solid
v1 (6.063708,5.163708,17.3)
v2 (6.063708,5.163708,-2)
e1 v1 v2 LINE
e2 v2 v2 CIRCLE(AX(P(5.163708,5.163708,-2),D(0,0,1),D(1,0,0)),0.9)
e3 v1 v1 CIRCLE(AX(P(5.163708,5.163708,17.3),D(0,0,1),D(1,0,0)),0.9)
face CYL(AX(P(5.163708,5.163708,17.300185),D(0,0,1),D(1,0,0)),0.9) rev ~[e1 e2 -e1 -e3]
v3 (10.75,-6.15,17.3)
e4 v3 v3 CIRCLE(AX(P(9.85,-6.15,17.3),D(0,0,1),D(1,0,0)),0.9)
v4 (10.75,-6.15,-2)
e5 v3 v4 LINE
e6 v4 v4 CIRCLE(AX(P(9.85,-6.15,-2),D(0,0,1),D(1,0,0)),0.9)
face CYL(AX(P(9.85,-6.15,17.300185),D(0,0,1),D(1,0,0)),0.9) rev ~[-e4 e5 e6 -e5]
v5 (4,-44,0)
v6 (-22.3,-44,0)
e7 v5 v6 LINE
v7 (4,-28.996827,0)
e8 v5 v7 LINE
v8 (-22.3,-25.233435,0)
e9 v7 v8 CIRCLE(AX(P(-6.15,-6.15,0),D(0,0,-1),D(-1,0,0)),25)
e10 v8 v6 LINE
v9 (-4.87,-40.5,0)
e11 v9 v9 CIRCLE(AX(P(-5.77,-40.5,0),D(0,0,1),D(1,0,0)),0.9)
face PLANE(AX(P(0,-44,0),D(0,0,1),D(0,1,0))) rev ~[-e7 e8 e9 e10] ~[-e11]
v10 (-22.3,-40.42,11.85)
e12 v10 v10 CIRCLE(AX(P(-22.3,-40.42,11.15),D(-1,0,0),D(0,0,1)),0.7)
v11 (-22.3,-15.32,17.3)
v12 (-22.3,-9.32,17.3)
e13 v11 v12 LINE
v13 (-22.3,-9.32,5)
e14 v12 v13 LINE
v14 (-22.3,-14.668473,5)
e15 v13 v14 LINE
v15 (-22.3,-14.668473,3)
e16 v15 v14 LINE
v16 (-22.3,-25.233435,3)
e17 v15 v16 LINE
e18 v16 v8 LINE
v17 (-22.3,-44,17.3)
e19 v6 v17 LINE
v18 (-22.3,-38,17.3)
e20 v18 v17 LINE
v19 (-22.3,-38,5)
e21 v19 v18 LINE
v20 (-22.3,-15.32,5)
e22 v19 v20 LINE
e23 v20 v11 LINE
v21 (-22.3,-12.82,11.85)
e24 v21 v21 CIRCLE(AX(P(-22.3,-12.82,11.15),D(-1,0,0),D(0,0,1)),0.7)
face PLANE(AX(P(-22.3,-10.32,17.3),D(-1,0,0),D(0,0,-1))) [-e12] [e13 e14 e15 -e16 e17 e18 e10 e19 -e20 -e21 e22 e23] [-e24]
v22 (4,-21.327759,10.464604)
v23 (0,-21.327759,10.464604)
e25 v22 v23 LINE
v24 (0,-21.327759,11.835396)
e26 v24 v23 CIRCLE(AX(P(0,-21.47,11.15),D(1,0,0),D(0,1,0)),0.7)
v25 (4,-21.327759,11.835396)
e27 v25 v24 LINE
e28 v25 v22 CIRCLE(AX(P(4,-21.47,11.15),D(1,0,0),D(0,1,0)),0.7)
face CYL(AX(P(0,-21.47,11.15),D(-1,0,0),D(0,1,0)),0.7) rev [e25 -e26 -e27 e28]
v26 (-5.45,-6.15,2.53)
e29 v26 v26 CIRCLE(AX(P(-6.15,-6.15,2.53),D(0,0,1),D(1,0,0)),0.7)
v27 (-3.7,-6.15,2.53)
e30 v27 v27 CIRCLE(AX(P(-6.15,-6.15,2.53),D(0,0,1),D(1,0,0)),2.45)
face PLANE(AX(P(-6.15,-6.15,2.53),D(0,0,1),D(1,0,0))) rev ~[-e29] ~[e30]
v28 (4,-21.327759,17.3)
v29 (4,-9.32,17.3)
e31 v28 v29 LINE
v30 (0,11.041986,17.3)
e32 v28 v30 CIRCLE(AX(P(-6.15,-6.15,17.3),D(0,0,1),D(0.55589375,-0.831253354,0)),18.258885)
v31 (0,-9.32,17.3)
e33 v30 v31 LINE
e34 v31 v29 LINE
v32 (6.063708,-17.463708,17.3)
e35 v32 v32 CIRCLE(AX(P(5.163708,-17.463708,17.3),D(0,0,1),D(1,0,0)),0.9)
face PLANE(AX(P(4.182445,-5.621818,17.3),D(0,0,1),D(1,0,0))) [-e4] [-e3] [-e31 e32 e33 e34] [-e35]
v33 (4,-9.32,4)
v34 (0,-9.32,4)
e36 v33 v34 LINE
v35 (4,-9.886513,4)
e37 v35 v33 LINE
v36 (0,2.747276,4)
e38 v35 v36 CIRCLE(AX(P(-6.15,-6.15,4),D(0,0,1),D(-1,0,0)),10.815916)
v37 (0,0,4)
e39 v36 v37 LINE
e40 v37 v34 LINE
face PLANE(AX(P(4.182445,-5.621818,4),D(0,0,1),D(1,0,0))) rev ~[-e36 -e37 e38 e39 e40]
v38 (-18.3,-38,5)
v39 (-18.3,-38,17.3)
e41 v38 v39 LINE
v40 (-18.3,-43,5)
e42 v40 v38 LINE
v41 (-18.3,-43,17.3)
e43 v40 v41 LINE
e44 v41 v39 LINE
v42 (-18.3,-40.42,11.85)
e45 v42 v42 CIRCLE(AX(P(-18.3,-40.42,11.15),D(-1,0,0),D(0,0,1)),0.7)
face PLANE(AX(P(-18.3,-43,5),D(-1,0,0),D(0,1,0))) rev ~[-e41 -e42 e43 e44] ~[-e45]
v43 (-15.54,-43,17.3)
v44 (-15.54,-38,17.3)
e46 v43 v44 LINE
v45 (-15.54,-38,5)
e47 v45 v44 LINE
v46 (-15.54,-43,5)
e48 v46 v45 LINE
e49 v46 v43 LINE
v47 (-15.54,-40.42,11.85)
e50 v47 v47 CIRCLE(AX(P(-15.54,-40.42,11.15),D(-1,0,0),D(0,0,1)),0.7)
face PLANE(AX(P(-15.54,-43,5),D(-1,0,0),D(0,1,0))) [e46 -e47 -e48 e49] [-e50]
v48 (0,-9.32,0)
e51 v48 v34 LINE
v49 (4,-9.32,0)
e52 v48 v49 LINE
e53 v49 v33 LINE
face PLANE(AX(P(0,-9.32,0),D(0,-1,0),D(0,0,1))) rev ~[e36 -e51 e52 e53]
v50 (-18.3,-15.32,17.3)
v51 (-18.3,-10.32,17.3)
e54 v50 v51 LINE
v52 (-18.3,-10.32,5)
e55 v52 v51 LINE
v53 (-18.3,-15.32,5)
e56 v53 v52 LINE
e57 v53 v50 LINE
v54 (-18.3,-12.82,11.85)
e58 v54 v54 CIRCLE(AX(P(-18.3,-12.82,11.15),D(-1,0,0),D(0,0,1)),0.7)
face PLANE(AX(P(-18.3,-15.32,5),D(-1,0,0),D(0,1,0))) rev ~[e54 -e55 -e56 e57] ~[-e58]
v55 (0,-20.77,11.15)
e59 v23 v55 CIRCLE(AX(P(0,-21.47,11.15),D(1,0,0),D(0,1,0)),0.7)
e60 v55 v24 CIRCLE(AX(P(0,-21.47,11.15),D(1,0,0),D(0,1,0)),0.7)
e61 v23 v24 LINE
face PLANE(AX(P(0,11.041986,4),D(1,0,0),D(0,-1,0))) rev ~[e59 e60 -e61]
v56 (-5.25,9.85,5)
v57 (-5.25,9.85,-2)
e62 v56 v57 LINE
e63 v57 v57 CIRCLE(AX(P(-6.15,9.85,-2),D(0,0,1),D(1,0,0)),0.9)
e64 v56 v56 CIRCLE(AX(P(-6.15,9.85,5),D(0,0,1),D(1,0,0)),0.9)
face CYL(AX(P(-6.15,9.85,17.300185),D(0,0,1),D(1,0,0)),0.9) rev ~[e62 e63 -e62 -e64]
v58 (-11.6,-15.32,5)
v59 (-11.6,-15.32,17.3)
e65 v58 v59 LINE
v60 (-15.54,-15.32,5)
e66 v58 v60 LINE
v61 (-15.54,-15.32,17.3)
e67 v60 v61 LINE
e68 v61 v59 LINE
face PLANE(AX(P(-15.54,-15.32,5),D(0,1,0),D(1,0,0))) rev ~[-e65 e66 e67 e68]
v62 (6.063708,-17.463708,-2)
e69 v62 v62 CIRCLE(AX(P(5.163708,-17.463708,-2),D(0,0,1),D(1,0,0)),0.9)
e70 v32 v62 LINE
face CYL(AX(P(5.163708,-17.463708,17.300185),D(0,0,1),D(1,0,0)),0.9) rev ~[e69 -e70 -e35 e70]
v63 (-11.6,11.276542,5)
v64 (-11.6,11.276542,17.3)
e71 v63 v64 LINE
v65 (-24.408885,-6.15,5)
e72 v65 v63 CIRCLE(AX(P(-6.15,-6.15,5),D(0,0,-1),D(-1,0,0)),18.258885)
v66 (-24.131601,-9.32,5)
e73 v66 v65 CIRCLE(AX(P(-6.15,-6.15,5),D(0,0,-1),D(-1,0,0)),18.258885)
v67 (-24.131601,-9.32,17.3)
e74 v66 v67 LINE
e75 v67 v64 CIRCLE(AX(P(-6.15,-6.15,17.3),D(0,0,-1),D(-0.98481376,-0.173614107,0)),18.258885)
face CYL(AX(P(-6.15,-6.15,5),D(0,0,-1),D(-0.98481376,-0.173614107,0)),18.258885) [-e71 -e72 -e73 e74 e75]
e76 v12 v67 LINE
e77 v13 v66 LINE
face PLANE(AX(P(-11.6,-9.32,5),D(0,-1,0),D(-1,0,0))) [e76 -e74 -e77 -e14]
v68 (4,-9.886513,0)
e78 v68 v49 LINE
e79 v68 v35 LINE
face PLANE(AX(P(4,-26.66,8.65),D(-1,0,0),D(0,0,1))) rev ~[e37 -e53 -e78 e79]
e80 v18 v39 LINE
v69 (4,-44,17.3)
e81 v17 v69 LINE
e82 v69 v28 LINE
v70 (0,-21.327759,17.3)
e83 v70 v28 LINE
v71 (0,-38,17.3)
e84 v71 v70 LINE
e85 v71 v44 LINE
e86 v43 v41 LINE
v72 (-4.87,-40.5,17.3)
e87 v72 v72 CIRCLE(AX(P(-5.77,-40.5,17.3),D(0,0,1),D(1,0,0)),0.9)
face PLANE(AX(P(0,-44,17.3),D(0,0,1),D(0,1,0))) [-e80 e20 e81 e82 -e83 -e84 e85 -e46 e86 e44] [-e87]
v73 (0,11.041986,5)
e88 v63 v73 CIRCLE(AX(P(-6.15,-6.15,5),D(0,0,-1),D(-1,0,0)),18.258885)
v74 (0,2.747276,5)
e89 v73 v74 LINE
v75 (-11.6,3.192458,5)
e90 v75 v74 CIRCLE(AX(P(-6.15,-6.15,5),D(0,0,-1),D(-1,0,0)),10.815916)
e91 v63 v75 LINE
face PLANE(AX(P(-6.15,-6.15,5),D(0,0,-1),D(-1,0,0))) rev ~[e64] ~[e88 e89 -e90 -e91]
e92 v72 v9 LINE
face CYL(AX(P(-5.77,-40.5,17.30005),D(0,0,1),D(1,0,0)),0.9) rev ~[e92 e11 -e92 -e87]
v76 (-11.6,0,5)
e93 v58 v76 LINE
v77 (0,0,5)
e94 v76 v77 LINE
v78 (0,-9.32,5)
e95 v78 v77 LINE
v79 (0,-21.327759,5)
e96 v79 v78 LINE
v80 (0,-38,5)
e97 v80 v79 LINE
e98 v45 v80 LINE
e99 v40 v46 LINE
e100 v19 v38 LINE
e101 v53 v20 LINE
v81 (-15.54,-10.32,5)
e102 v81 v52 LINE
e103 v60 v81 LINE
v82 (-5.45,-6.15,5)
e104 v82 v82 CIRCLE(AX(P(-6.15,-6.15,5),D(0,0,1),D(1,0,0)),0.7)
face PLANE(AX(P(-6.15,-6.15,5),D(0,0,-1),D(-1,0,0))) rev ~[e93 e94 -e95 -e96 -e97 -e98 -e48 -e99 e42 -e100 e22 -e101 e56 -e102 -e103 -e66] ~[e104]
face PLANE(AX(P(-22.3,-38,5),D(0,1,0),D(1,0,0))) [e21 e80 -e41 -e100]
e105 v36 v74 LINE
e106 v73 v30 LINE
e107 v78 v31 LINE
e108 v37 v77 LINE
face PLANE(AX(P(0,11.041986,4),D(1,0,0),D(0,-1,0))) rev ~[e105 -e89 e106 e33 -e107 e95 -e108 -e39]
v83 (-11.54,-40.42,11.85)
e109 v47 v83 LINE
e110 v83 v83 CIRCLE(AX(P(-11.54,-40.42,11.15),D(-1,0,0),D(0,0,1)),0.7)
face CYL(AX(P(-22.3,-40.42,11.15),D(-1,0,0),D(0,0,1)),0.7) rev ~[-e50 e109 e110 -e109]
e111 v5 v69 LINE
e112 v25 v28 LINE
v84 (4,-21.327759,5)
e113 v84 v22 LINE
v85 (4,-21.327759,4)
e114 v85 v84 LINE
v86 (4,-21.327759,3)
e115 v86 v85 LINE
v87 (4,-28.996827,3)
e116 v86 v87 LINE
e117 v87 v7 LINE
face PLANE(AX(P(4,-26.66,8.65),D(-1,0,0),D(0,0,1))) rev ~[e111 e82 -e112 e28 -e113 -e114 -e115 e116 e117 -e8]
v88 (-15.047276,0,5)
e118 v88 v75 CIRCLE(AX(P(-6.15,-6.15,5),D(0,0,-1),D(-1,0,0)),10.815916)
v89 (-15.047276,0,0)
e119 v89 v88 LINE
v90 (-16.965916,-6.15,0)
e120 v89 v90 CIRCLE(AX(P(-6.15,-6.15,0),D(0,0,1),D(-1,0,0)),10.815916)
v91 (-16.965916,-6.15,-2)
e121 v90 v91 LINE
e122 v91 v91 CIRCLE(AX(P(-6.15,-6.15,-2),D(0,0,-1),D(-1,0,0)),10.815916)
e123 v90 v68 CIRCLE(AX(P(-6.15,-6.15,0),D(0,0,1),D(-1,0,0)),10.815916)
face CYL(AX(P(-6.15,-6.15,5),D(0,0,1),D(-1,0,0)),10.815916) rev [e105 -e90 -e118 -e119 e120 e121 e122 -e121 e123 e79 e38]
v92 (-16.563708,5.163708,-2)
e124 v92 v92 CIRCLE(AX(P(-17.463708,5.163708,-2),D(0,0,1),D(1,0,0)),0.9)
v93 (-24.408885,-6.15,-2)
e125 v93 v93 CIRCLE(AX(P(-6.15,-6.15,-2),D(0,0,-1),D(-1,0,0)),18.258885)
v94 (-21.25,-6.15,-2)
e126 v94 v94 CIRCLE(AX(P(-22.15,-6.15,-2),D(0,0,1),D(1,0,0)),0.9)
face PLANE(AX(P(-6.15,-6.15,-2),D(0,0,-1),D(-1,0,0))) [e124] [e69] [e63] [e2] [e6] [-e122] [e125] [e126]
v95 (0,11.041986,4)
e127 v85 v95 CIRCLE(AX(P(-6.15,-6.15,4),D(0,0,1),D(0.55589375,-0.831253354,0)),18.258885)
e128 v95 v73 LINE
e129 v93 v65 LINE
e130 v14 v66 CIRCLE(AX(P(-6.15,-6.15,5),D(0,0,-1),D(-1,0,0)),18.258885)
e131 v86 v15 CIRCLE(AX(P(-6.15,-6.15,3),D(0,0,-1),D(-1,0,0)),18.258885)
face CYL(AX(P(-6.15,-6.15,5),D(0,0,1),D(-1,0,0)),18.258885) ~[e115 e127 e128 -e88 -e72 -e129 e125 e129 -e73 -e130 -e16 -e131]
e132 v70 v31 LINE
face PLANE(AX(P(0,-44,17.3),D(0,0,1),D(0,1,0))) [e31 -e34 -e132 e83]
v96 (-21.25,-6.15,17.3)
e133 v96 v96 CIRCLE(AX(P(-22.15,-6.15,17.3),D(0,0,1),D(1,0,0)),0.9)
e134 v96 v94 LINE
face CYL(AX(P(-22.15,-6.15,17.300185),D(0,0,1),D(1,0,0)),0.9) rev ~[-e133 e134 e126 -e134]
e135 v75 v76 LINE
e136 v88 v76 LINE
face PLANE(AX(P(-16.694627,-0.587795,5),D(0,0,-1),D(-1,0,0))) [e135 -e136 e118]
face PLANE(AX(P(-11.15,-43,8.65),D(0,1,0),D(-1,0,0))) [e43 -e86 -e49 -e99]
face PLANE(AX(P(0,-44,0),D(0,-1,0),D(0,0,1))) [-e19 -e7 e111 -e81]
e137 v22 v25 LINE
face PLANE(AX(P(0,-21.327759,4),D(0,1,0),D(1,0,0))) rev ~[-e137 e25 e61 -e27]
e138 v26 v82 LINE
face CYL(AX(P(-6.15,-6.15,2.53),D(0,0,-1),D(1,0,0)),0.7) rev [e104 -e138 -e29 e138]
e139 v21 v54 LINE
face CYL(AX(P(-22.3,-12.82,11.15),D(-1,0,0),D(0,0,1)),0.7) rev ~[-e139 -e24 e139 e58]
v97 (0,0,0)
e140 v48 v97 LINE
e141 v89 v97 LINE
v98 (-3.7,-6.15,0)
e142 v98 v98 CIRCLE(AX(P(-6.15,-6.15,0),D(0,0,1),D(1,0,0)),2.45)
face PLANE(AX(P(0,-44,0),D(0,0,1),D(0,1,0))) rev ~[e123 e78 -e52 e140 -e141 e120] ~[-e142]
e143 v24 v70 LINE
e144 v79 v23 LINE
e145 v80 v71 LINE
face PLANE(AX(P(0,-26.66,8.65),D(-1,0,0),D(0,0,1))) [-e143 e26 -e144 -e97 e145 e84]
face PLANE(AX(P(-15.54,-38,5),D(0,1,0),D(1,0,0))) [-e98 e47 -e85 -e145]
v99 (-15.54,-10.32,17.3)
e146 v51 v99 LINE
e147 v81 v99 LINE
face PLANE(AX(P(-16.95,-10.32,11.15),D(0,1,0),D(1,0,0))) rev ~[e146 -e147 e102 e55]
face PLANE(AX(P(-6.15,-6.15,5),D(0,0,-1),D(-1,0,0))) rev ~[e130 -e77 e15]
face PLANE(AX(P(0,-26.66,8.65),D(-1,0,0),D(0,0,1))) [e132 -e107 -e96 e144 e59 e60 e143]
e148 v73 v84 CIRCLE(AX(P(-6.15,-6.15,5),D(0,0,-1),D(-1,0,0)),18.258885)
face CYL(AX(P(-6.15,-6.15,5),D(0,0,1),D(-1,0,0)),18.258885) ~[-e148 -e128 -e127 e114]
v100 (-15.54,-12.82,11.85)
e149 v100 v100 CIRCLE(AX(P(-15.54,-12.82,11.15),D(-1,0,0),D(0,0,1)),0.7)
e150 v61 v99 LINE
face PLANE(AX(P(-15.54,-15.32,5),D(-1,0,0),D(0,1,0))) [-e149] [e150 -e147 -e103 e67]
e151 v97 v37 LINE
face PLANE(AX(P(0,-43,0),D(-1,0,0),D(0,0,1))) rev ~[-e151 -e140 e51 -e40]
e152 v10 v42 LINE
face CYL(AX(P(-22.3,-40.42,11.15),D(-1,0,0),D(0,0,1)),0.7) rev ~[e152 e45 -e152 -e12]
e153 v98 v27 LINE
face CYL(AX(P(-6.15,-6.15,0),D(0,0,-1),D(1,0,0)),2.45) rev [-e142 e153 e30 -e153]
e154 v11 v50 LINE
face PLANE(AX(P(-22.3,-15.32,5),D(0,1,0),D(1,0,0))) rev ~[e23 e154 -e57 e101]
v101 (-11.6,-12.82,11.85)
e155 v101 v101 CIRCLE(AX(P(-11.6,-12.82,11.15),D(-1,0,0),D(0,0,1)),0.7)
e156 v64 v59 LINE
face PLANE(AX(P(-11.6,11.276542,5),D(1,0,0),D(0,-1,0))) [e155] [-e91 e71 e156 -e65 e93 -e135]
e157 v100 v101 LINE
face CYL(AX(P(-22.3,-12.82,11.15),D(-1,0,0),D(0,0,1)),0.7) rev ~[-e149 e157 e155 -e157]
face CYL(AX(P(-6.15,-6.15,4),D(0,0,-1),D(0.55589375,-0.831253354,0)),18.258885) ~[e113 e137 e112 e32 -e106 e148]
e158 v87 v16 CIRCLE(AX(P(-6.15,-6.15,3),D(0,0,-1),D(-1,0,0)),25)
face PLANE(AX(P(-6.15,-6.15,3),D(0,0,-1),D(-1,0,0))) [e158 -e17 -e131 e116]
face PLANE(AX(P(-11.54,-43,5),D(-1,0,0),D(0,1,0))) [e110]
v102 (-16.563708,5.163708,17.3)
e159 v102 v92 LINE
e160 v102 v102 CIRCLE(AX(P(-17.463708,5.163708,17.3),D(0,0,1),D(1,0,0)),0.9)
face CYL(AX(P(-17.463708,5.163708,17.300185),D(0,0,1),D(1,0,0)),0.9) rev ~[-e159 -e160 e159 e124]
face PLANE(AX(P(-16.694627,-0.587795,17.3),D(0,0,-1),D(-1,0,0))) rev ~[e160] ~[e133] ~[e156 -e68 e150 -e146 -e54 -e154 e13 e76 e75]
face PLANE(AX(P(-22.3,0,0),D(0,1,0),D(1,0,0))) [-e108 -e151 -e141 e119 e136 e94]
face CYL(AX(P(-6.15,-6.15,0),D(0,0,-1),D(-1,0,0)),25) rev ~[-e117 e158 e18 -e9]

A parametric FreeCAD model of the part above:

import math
import FreeCAD as App
import Part
import Sketcher
from FreeCAD import Vector
Q = App.Units.Quantity


def add_polygon(sketch, points):
    """Adds a closed chain of lines whose ends are joined by coincident constraints."""
    first, n = sketch.GeometryCount, len(points)
    for a, b in zip(points, points[1:] + points[:1]):
        sketch.addGeometry(Part.LineSegment(App.Vector(*a, 0), App.Vector(*b, 0)), False)
    for i in range(n):
        sketch.addConstraint(Sketcher.Constraint("Coincident", first + i, 2, first + (i + 1) % n, 1))

doc = App.newDocument("Part")
params = doc.addObject("Spreadsheet::Sheet", "Params")
for row, (alias, value) in enumerate([
    ("sketch1_diameter", "4.9 mm"),
    ("sketch1_height", "43 mm"),
    ("sketch1_width", "22.3 mm"),
    ("pad1_length", "5 mm"),
    ("sketch2_diameter", "4.9 mm"),
    ("sketch2_diameter2", "1.4 mm"),
    ("pad2_length", "2.47 mm"),
    ("sketch3_width", "4 mm"),
    ("sketch3_height", "5 mm"),
    ("sketch3_width2", "3.94 mm"),
    ("pad3_length", "12.3 mm"),
    ("sketch4_diameter", "1.4 mm"),
    ("sketch5_width", "22.3 mm"),
    ("sketch5_height", "17.3 mm"),
    ("pad4_length", "1 mm"),
    ("sketch6_width", "10.7 mm"),
    ("sketch6_height", "12.3 mm"),
    ("pad5_length", "1 mm"),
    ("sketch7_diameter", "1.4 mm"),
    ("sketch7_height", "17.3 mm"),
    ("sketch7_width", "34.68 mm"),
    ("pad6_length", "4 mm"),
    ("pad7_length", "2 mm"),
    ("pad7_length2", "5 mm"),
    ("sketch9_diameter", "50 mm"),
    ("pocket2_length", "3 mm"),
    ("sketch10_height", "5 mm"),
    ("sketch10_width", "11.54 mm"),
    ("pad8_length", "12.3 mm"),
    ("pad9_length", "12.3 mm"),
    ("sketch12_width", "4 mm"),
    ("pad10_length", "12.3 mm"),
    ("pad10_length2", "1 mm"),
    ("sketch13_diameter", "1.8 mm"),
    ("sketch14_diameter", "1.8 mm"),
], start=1):
    params.set(f"A{row}", alias)
    params.set(f"B{row}", "=" + value)
    params.setAlias(f"B{row}", alias)

body = doc.addObject("PartDesign::Body", "Body")

sketch1 = body.newObject("Sketcher::SketchObject", "Sketch")
sketch1.AttachmentSupport = (doc.getObject("XY_Plane"), [""])
sketch1.MapMode = "FlatFace"
add_polygon(sketch1, [(-22.3, 0), (-22.3, -43), (0, -43), (0, 0)])
sketch1.addGeometry(Part.Circle(Vector(-6.2, -6.2, 0), Vector(0, 0, 1), 2.5), False)
sketch1.addConstraint(Sketcher.Constraint("Vertical", 0))
sketch1.addConstraint(Sketcher.Constraint("Horizontal", 1))
sketch1.addConstraint(Sketcher.Constraint("Vertical", 2))
sketch1.addConstraint(Sketcher.Constraint("Horizontal", 3))
sketch1.addConstraint(Sketcher.Constraint("Coincident", 2, 2, -1, 1))
sketch1.addConstraint(Sketcher.Constraint("Diameter", 4, Q("4.9 mm")))
sketch1.addConstraint(Sketcher.Constraint("DistanceY", 0, 2, 0, 1, Q("43 mm")))
sketch1.addConstraint(Sketcher.Constraint("DistanceX", 1, 1, 1, 2, Q("22.3 mm")))
sketch1.addConstraint(Sketcher.Constraint("DistanceX", 4, 3, -1, 1, Q("6.15 mm")))
sketch1.addConstraint(Sketcher.Constraint("DistanceY", 4, 3, -1, 1, Q("6.15 mm")))
sketch1.setExpression("Constraints[9]", "Params.sketch1_diameter")
sketch1.setExpression("Constraints[10]", "Params.sketch1_height")
sketch1.setExpression("Constraints[11]", "Params.sketch1_width")
pad1 = body.newObject("PartDesign::Pad", "Pad")
pad1.Profile = sketch1
pad1.setExpression("Length", "Params.pad1_length")

sketch2 = body.newObject("Sketcher::SketchObject", "Sketch001")
sketch2.AttachmentSupport = (doc.getObject("XY_Plane"), [""])
sketch2.MapMode = "FlatFace"
sketch2.AttachmentOffset = App.Placement(Vector(0, 0, 2.53), App.Rotation())
sketch2.addGeometry(Part.Circle(Vector(-6.2, -6.2, 0), Vector(0, 0, 1), 2.5), False)
sketch2.addGeometry(Part.Circle(Vector(-6.2, -6.2, 0), Vector(0, 0, 1), 0.7), False)
sketch2.addConstraint(Sketcher.Constraint("Coincident", 1, 3, 0, 3))
sketch2.addConstraint(Sketcher.Constraint("Diameter", 0, Q("4.9 mm")))
sketch2.addConstraint(Sketcher.Constraint("Diameter", 1, Q("1.4 mm")))
sketch2.addConstraint(Sketcher.Constraint("DistanceX", 0, 3, -1, 1, Q("6.15 mm")))
sketch2.addConstraint(Sketcher.Constraint("DistanceY", 0, 3, -1, 1, Q("6.15 mm")))
sketch2.setExpression("Constraints[1]", "Params.sketch2_diameter")
sketch2.setExpression("Constraints[2]", "Params.sketch2_diameter2")
pad2 = body.newObject("PartDesign::Pad", "Pad001")
pad2.Profile = sketch2
pad2.setExpression("Length", "Params.pad2_length")

sketch3 = body.newObject("Sketcher::SketchObject", "Sketch002")
sketch3.AttachmentSupport = (doc.getObject("XY_Plane"), [""])
sketch3.MapMode = "FlatFace"
sketch3.AttachmentOffset = App.Placement(Vector(0, 0, 5), App.Rotation())
add_polygon(sketch3, [(-22.3, -38), (-22.3, -43), (-18.3, -43), (-18.3, -38)])
add_polygon(sketch3, [(-15.5, -38), (-15.5, -43), (-11.5, -43), (-11.5, -38)])
add_polygon(sketch3, [(-22.3, -10.3), (-22.3, -15.3), (-18.3, -15.3), (-18.3, -10.3)])
add_polygon(sketch3, [(-15.5, -10.3), (-15.5, -15.3), (-11.6, -15.3), (-11.6, -10.3)])
sketch3.addConstraint(Sketcher.Constraint("Vertical", 0))
sketch3.addConstraint(Sketcher.Constraint("Horizontal", 1))
sketch3.addConstraint(Sketcher.Constraint("Vertical", 2))
sketch3.addConstraint(Sketcher.Constraint("Horizontal", 3))
sketch3.addConstraint(Sketcher.Constraint("Vertical", 4))
sketch3.addConstraint(Sketcher.Constraint("Horizontal", 5))
sketch3.addConstraint(Sketcher.Constraint("Vertical", 6))
sketch3.addConstraint(Sketcher.Constraint("Horizontal", 7))
sketch3.addConstraint(Sketcher.Constraint("Vertical", 8))
sketch3.addConstraint(Sketcher.Constraint("Horizontal", 9))
sketch3.addConstraint(Sketcher.Constraint("Vertical", 10))
sketch3.addConstraint(Sketcher.Constraint("Horizontal", 11))
sketch3.addConstraint(Sketcher.Constraint("Vertical", 12))
sketch3.addConstraint(Sketcher.Constraint("Horizontal", 13))
sketch3.addConstraint(Sketcher.Constraint("Vertical", 14))
sketch3.addConstraint(Sketcher.Constraint("Horizontal", 15))
sketch3.addConstraint(Sketcher.Constraint("Horizontal", 1, 2, 4, 2))
sketch3.addConstraint(Sketcher.Constraint("Horizontal", 3, 2, 6, 2))
sketch3.addConstraint(Sketcher.Constraint("Horizontal", 9, 2, 12, 2))
sketch3.addConstraint(Sketcher.Constraint("Horizontal", 11, 2, 14, 2))
sketch3.addConstraint(Sketcher.Constraint("Vertical", 3, 2, 8, 2))
sketch3.addConstraint(Sketcher.Constraint("Vertical", 2, 2, 9, 2))
sketch3.addConstraint(Sketcher.Constraint("Vertical", 7, 2, 12, 2))
sketch3.addConstraint(Sketcher.Constraint("Equal", 3, 5))
sketch3.addConstraint(Sketcher.Constraint("Equal", 6, 8))
sketch3.addConstraint(Sketcher.Constraint("DistanceX", 1, 1, 1, 2, Q("4 mm")))
sketch3.addConstraint(Sketcher.Constraint("DistanceY", 0, 2, 0, 1, Q("5 mm")))
sketch3.addConstraint(Sketcher.Constraint("DistanceY", 0, 2, -1, 1, Q("43 mm")))
sketch3.addConstraint(Sketcher.Constraint("DistanceX", 13, 1, 13, 2, Q("3.94 mm")))
sketch3.addConstraint(Sketcher.Constraint("DistanceX", 0, 2, -1, 1, Q("22.3 mm")))
sketch3.addConstraint(Sketcher.Constraint("DistanceX", 13, 2, -1, 1, Q("11.6 mm")))
sketch3.addConstraint(Sketcher.Constraint("DistanceY", 8, 2, -1, 1, Q("15.32 mm")))
sketch3.setExpression("Constraints[41]", "Params.sketch3_width")
sketch3.setExpression("Constraints[42]", "Params.sketch3_height")
sketch3.setExpression("Constraints[44]", "Params.sketch3_width2")
pad3 = body.newObject("PartDesign::Pad", "Pad002")
pad3.Profile = sketch3
pad3.setExpression("Length", "Params.pad3_length")

sketch4 = body.newObject("Sketcher::SketchObject", "Sketch003")
sketch4.AttachmentSupport = (doc.getObject("YZ_Plane"), [""])
sketch4.MapMode = "FlatFace"
sketch4.AttachmentOffset = App.Placement(Vector(0, 0, -22.3), App.Rotation())
sketch4.addGeometry(Part.Circle(Vector(-12.8, 11.2, 0), Vector(0, 0, 1), 0.7), False)
sketch4.addGeometry(Part.Circle(Vector(-40.4, 11.2, 0), Vector(0, 0, 1), 0.7), False)
sketch4.addConstraint(Sketcher.Constraint("Equal", 0, 1))
sketch4.addConstraint(Sketcher.Constraint("Horizontal", 0, 3, 1, 3))
sketch4.addConstraint(Sketcher.Constraint("Diameter", 0, Q("1.4 mm")))
sketch4.addConstraint(Sketcher.Constraint("DistanceX", 1, 3, 0, 3, Q("27.6 mm")))
sketch4.addConstraint(Sketcher.Constraint("DistanceX", 0, 3, -1, 1, Q("12.82 mm")))
sketch4.addConstraint(Sketcher.Constraint("DistanceY", -1, 1, 0, 3, Q("11.15 mm")))
sketch4.setExpression("Constraints[2]", "Params.sketch4_diameter")
pocket1 = body.newObject("PartDesign::Pocket", "Pocket")
pocket1.Profile = sketch4
pocket1.Type = "ThroughAll"
pocket1.Reversed = True

sketch5 = body.newObject("Sketcher::SketchObject", "Sketch004")
sketch5.AttachmentSupport = (doc.getObject("XZ_Plane"), [""])
sketch5.MapMode = "FlatFace"
sketch5.AttachmentOffset = App.Placement(Vector(0, 0, 43), App.Rotation())
add_polygon(sketch5, [(0, 17), (-22, 17), (-22, 0), (0, 0)])
sketch5.addConstraint(Sketcher.Constraint("Horizontal", 0))
sketch5.addConstraint(Sketcher.Constraint("Vertical", 1))
sketch5.addConstraint(Sketcher.Constraint("Horizontal", 2))
sketch5.addConstraint(Sketcher.Constraint("Vertical", 3))
sketch5.addConstraint(Sketcher.Constraint("Coincident", 2, 2, -1, 1))
sketch5.addConstraint(Sketcher.Constraint("DistanceX", 0, 2, 0, 1, Q("22.3 mm")))
sketch5.addConstraint(Sketcher.Constraint("DistanceY", 1, 2, 1, 1, Q("17.3 mm")))
sketch5.setExpression("Constraints[9]", "Params.sketch5_width")
sketch5.setExpression("Constraints[10]", "Params.sketch5_height")
pad4 = body.newObject("PartDesign::Pad", "Pad003")
pad4.Profile = sketch5
pad4.setExpression("Length", "Params.pad4_length")

sketch6 = body.newObject("Sketcher::SketchObject", "Sketch005")
sketch6.AttachmentSupport = (doc.getObject("XZ_Plane"), [""])
sketch6.MapMode = "FlatFace"
sketch6.AttachmentOffset = App.Placement(Vector(0, 0, 10.32), App.Rotation())
add_polygon(sketch6, [(-22, 5), (-22, 17), (-12, 17), (-12, 5)])
sketch6.addConstraint(Sketcher.Constraint("Vertical", 0))
sketch6.addConstraint(Sketcher.Constraint("Horizontal", 1))
sketch6.addConstraint(Sketcher.Constraint("Vertical", 2))
sketch6.addConstraint(Sketcher.Constraint("Horizontal", 3))
sketch6.addConstraint(Sketcher.Constraint("DistanceX", 1, 1, 1, 2, Q("10.7 mm")))
sketch6.addConstraint(Sketcher.Constraint("DistanceY", 0, 1, 0, 2, Q("12.3 mm")))
sketch6.addConstraint(Sketcher.Constraint("DistanceY", -1, 1, 2, 2, Q("5 mm")))
sketch6.addConstraint(Sketcher.Constraint("DistanceX", 0, 2, -1, 1, Q("22.3 mm")))
sketch6.setExpression("Constraints[8]", "Params.sketch6_width")
sketch6.setExpression("Constraints[9]", "Params.sketch6_height")
pad5 = body.newObject("PartDesign::Pad", "Pad004")
pad5.Profile = sketch6
pad5.setExpression("Length", "Params.pad5_length")
pad5.Reversed = True

sketch7 = body.newObject("Sketcher::SketchObject", "Sketch006")
sketch7.AttachmentSupport = (doc.getObject("YZ_Plane"), [""])
sketch7.MapMode = "FlatFace"
add_polygon(sketch7, [(-9.3, 0), (-9.3, 17.3), (-44, 17.3), (-44, 0)])
sketch7.addGeometry(Part.Circle(Vector(-21.5, 11.2, 0), Vector(0, 0, 1), 0.7), False)
sketch7.addConstraint(Sketcher.Constraint("Vertical", 0))
sketch7.addConstraint(Sketcher.Constraint("Horizontal", 1))
sketch7.addConstraint(Sketcher.Constraint("Vertical", 2))
sketch7.addConstraint(Sketcher.Constraint("Horizontal", 3))
sketch7.addConstraint(Sketcher.Constraint("PointOnObject", 2, 2, -1))
sketch7.addConstraint(Sketcher.Constraint("Diameter", 4, Q("1.4 mm")))
sketch7.addConstraint(Sketcher.Constraint("DistanceY", 0, 1, 0, 2, Q("17.3 mm")))
sketch7.addConstraint(Sketcher.Constraint("DistanceX", 1, 2, -1, 1, Q("44 mm")))
sketch7.addConstraint(Sketcher.Constraint("DistanceX", 1, 2, 1, 1, Q("34.68 mm")))
sketch7.addConstraint(Sketcher.Constraint("DistanceX", 4, 3, -1, 1, Q("21.47 mm")))
sketch7.addConstraint(Sketcher.Constraint("DistanceY", -1, 1, 4, 3, Q("11.15 mm")))
sketch7.setExpression("Constraints[9]", "Params.sketch7_diameter")
sketch7.setExpression("Constraints[10]", "Params.sketch7_height")
sketch7.setExpression("Constraints[12]", "Params.sketch7_width")
pad6 = body.newObject("PartDesign::Pad", "Pad005")
pad6.Profile = sketch7
pad6.setExpression("Length", "Params.pad6_length")

sketch8 = body.newObject("Sketcher::SketchObject", "Sketch007")
sketch8.AttachmentSupport = (doc.getObject("XY_Plane"), [""])
sketch8.MapMode = "FlatFace"
sketch8.addGeometry(Part.Circle(Vector(-6, -6, 0), Vector(0, 0, 1), 18), False)
sketch8.addGeometry(Part.Circle(Vector(-6, -6, 0), Vector(0, 0, 1), 11), False)
sketch8.addConstraint(Sketcher.Constraint("Coincident", 1, 3, 0, 3))
sketch8.addConstraint(Sketcher.Constraint("Diameter", 0, Q("36.51777 mm")))
sketch8.addConstraint(Sketcher.Constraint("Diameter", 1, Q("21.631831 mm")))
sketch8.addConstraint(Sketcher.Constraint("DistanceX", 0, 3, -1, 1, Q("6.15 mm")))
sketch8.addConstraint(Sketcher.Constraint("DistanceY", 0, 3, -1, 1, Q("6.15 mm")))
pad7 = body.newObject("PartDesign::Pad", "Pad006")
pad7.Profile = sketch8
pad7.Type = "TwoLengths"
pad7.setExpression("Length", "Params.pad7_length")
pad7.setExpression("Length2", "Params.pad7_length2")
pad7.Reversed = True

sketch9 = body.newObject("Sketcher::SketchObject", "Sketch008")
sketch9.AttachmentSupport = (doc.getObject("XY_Plane"), [""])
sketch9.MapMode = "FlatFace"
sketch9.addGeometry(Part.Circle(Vector(-6, -6, 0), Vector(0, 0, 1), 25), False)
sketch9.addGeometry(Part.Circle(Vector(-6, -6, 0), Vector(0, 0, 1), 18), False)
sketch9.addConstraint(Sketcher.Constraint("Coincident", 1, 3, 0, 3))
sketch9.addConstraint(Sketcher.Constraint("Diameter", 0, Q("50 mm")))
sketch9.addConstraint(Sketcher.Constraint("Diameter", 1, Q("36.51777 mm")))
sketch9.addConstraint(Sketcher.Constraint("DistanceX", 0, 3, -1, 1, Q("6.15 mm")))
sketch9.addConstraint(Sketcher.Constraint("DistanceY", 0, 3, -1, 1, Q("6.15 mm")))
sketch9.setExpression("Constraints[1]", "Params.sketch9_diameter")
pocket2 = body.newObject("PartDesign::Pocket", "Pocket001")
pocket2.Profile = sketch9
pocket2.setExpression("Length", "Params.pocket2_length")
pocket2.Reversed = True

sketch10 = body.newObject("Sketcher::SketchObject", "Sketch009")
sketch10.AttachmentSupport = (doc.getObject("XY_Plane"), [""])
sketch10.MapMode = "FlatFace"
sketch10.AttachmentOffset = App.Placement(Vector(0, 0, 5), App.Rotation())
add_polygon(sketch10, [(-12, -38), (-12, -43), (0, -43), (0, -38)])
sketch10.addConstraint(Sketcher.Constraint("Vertical", 0))
sketch10.addConstraint(Sketcher.Constraint("Horizontal", 1))
sketch10.addConstraint(Sketcher.Constraint("Vertical", 2))
sketch10.addConstraint(Sketcher.Constraint("Horizontal", 3))
sketch10.addConstraint(Sketcher.Constraint("PointOnObject", 1, 2, -2))
sketch10.addConstraint(Sketcher.Constraint("DistanceY", 0, 2, 0, 1, Q("5 mm")))
sketch10.addConstraint(Sketcher.Constraint("DistanceY", 0, 2, -1, 1, Q("43 mm")))
sketch10.addConstraint(Sketcher.Constraint("DistanceX", 1, 1, 1, 2, Q("11.54 mm")))
sketch10.setExpression("Constraints[9]", "Params.sketch10_height")
sketch10.setExpression("Constraints[11]", "Params.sketch10_width")
pad8 = body.newObject("PartDesign::Pad", "Pad007")
pad8.Profile = sketch10
pad8.setExpression("Length", "Params.pad8_length")

sketch11 = body.newObject("Sketcher::SketchObject", "Sketch010")
sketch11.AttachmentSupport = (doc.getObject("XY_Plane"), [""])
sketch11.MapMode = "FlatFace"
sketch11.AttachmentOffset = App.Placement(Vector(0, 0, 5), App.Rotation())
sketch11.addGeometry(Part.LineSegment(Vector(-12, -9, 0), Vector(-12, 11, 0)), False)
sketch11.addGeometry(Part.ArcOfCircle(Part.Circle(Vector(-6, -6, 0), Vector(0, 0, 1), 18), math.radians(107), math.radians(190)), False)
sketch11.addGeometry(Part.LineSegment(Vector(-24, -9, 0), Vector(-12, -9, 0)), False)
sketch11.addConstraint(Sketcher.Constraint("Coincident", 0, 2, 1, 1))
sketch11.addConstraint(Sketcher.Constraint("Coincident", 1, 2, 2, 1))
sketch11.addConstraint(Sketcher.Constraint("Coincident", 2, 2, 0, 1))
sketch11.addConstraint(Sketcher.Constraint("Vertical", 0))
sketch11.addConstraint(Sketcher.Constraint("Horizontal", 2))
sketch11.addConstraint(Sketcher.Constraint("DistanceX", 0, 2, -1, 1, Q("11.6 mm")))
sketch11.addConstraint(Sketcher.Constraint("DistanceX", 1, 3, -1, 1, Q("6.15 mm")))
sketch11.addConstraint(Sketcher.Constraint("DistanceY", 1, 3, -1, 1, Q("6.15 mm")))
sketch11.addConstraint(Sketcher.Constraint("DistanceY", 1, 2, -1, 1, Q("9.32 mm")))
sketch11.addConstraint(Sketcher.Constraint("DistanceX", 2, 1, 2, 2, Q("12.531601 mm")))
pad9 = body.newObject("PartDesign::Pad", "Pad008")
pad9.Profile = sketch11
pad9.setExpression("Length", "Params.pad9_length")

sketch12 = body.newObject("Sketcher::SketchObject", "Sketch011")
sketch12.AttachmentSupport = (doc.getObject("XY_Plane"), [""])
sketch12.MapMode = "FlatFace"
sketch12.AttachmentOffset = App.Placement(Vector(0, 0, 5), App.Rotation())
sketch12.addGeometry(Part.LineSegment(Vector(0, 11, 0), Vector(0, -21.3, 0)), False)
sketch12.addGeometry(Part.LineSegment(Vector(0, -21.3, 0), Vector(4, -21.3, 0)), False)
sketch12.addGeometry(Part.ArcOfCircle(Part.Circle(Vector(-6.2, -6.2, 0), Vector(0, 0, 1), 18.3), math.radians(-56), math.radians(70)), False)
sketch12.addConstraint(Sketcher.Constraint("Coincident", 0, 2, 1, 1))
sketch12.addConstraint(Sketcher.Constraint("Coincident", 1, 2, 2, 1))
sketch12.addConstraint(Sketcher.Constraint("Coincident", 2, 2, 0, 1))
sketch12.addConstraint(Sketcher.Constraint("Vertical", 0))
sketch12.addConstraint(Sketcher.Constraint("Horizontal", 1))
sketch12.addConstraint(Sketcher.Constraint("PointOnObject", 0, 2, -2))
sketch12.addConstraint(Sketcher.Constraint("DistanceX", 1, 1, 1, 2, Q("4 mm")))
sketch12.addConstraint(Sketcher.Constraint("DistanceX", 2, 3, -1, 1, Q("6.15 mm")))
sketch12.addConstraint(Sketcher.Constraint("DistanceY", 2, 3, -1, 1, Q("6.15 mm")))
sketch12.addConstraint(Sketcher.Constraint("Radius", 2, Q("18.258885 mm")))
sketch12.setExpression("Constraints[6]", "Params.sketch12_width")
pad10 = body.newObject("PartDesign::Pad", "Pad009")
pad10.Profile = sketch12
pad10.Type = "TwoLengths"
pad10.setExpression("Length", "Params.pad10_length")
pad10.setExpression("Length2", "Params.pad10_length2")

sketch13 = body.newObject("Sketcher::SketchObject", "Sketch012")
sketch13.AttachmentSupport = (doc.getObject("XY_Plane"), [""])
sketch13.MapMode = "FlatFace"
sketch13.AttachmentOffset = App.Placement(Vector(0, 0, 17.300185), App.Rotation())
sketch13.addGeometry(Part.Circle(Vector(9.8, -6.2, 0), Vector(0, 0, 1), 0.9), False)
sketch13.addGeometry(Part.Circle(Vector(5.2, -17.5, 0), Vector(0, 0, 1), 0.9), False)
sketch13.addGeometry(Part.Circle(Vector(-22.1, -6.2, 0), Vector(0, 0, 1), 0.9), False)
sketch13.addGeometry(Part.Circle(Vector(-17.5, 5.2, 0), Vector(0, 0, 1), 0.9), False)
sketch13.addGeometry(Part.Circle(Vector(-6.2, 9.8, 0), Vector(0, 0, 1), 0.9), False)
sketch13.addGeometry(Part.Circle(Vector(5.2, 5.2, 0), Vector(0, 0, 1), 0.9), False)
sketch13.addConstraint(Sketcher.Constraint("Equal", 0, 1))
sketch13.addConstraint(Sketcher.Constraint("Equal", 1, 2))
sketch13.addConstraint(Sketcher.Constraint("Equal", 2, 3))
sketch13.addConstraint(Sketcher.Constraint("Equal", 3, 4))
sketch13.addConstraint(Sketcher.Constraint("Equal", 4, 5))
sketch13.addConstraint(Sketcher.Constraint("Horizontal", 0, 3, 2, 3))
sketch13.addConstraint(Sketcher.Constraint("Horizontal", 3, 3, 5, 3))
sketch13.addConstraint(Sketcher.Constraint("Vertical", 1, 3, 5, 3))
sketch13.addConstraint(Sketcher.Constraint("Diameter", 0, Q("1.8 mm")))
sketch13.addConstraint(Sketcher.Constraint("DistanceX", 2, 3, 0, 3, Q("32 mm")))
sketch13.addConstraint(Sketcher.Constraint("DistanceX", 2, 3, 4, 3, Q("16 mm")))
sketch13.addConstraint(Sketcher.Constraint("DistanceY", 2, 3, 4, 3, Q("16 mm")))
sketch13.addConstraint(Sketcher.Constraint("DistanceX", -1, 1, 0, 3, Q("9.85 mm")))
sketch13.addConstraint(Sketcher.Constraint("DistanceY", 0, 3, -1, 1, Q("6.15 mm")))
sketch13.addConstraint(Sketcher.Constraint("DistanceX", -1, 1, 1, 3, Q("5.163708 mm")))
sketch13.addConstraint(Sketcher.Constraint("DistanceY", 1, 3, -1, 1, Q("17.463708 mm")))
sketch13.addConstraint(Sketcher.Constraint("DistanceX", 3, 3, -1, 1, Q("17.463708 mm")))
sketch13.addConstraint(Sketcher.Constraint("DistanceY", -1, 1, 3, 3, Q("5.163708 mm")))
sketch13.setExpression("Constraints[8]", "Params.sketch13_diameter")
pocket3 = body.newObject("PartDesign::Pocket", "Pocket002")
pocket3.Profile = sketch13
pocket3.Type = "ThroughAll"

sketch14 = body.newObject("Sketcher::SketchObject", "Sketch013")
sketch14.AttachmentSupport = (doc.getObject("XY_Plane"), [""])
sketch14.MapMode = "FlatFace"
sketch14.AttachmentOffset = App.Placement(Vector(0, 0, 17.30005), App.Rotation())
sketch14.addGeometry(Part.Circle(Vector(-5.8, -40.5, 0), Vector(0, 0, 1), 0.9), False)
sketch14.addConstraint(Sketcher.Constraint("Diameter", 0, Q("1.8 mm")))
sketch14.addConstraint(Sketcher.Constraint("DistanceY", 0, 3, -1, 1, Q("40.5 mm")))
sketch14.addConstraint(Sketcher.Constraint("DistanceX", 0, 3, -1, 1, Q("5.77 mm")))
sketch14.setExpression("Constraints[0]", "Params.sketch14_diameter")
pocket4 = body.newObject("PartDesign::Pocket", "Pocket003")
pocket4.Profile = sketch14
pocket4.Type = "ThroughAll"

doc.recompute()
